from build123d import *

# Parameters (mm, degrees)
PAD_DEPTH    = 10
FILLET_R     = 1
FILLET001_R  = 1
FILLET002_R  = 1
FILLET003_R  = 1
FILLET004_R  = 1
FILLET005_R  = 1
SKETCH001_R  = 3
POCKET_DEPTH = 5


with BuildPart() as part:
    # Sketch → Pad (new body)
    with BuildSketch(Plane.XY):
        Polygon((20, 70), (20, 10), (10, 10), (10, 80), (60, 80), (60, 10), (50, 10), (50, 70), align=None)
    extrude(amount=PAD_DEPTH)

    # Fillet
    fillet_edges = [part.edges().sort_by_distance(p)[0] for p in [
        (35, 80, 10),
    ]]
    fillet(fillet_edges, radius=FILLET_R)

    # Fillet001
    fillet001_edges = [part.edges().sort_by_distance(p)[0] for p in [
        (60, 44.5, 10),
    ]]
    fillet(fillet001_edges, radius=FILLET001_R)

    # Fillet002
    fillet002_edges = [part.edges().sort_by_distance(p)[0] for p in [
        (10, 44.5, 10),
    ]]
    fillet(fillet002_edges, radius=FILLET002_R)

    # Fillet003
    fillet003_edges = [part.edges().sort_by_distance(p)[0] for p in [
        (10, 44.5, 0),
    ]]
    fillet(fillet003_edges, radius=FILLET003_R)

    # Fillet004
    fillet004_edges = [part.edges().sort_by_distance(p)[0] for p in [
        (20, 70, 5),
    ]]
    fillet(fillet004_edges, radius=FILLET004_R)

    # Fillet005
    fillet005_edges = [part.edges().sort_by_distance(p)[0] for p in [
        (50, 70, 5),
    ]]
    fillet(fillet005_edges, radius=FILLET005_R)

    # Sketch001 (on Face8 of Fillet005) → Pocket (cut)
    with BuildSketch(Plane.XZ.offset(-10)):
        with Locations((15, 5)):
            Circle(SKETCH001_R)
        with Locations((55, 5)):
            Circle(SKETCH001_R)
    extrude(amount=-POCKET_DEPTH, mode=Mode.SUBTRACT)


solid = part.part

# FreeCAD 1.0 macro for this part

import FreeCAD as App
import Part
import Sketcher
from FreeCAD import Vector
Q = App.Units.Quantity


def edges_at(feature, points):
    """Names of the edges that pass closest to the given points."""
    edges = feature.Shape.Edges
    near = lambda p: min(range(len(edges)), key=lambda i: edges[i].distToShape(Part.Vertex(*p))[0])
    return sorted({f"Edge{near(p) + 1}" for p in points})


def add_polygon(sketch, points):
    """Adds a closed chain of lines whose ends are joined by coincident constraints."""
    first, n = sketch.GeometryCount, len(points)
    for a, b in zip(points, points[1:] + points[:1]):
        sketch.addGeometry(Part.LineSegment(App.Vector(*a, 0), App.Vector(*b, 0)), False)
    for i in range(n):
        sketch.addConstraint(Sketcher.Constraint("Coincident", first + i, 2, first + (i + 1) % n, 1))

doc = App.newDocument("Part")
body = doc.addObject("PartDesign::Body", "Body")

# Sketch on XY plane
sketch1 = body.newObject("Sketcher::SketchObject", "Sketch")
sketch1.AttachmentSupport = (doc.getObject("XY_Plane"), [""])
sketch1.MapMode = "FlatFace"
add_polygon(sketch1, [(20, 10), (20, 70), (50, 70), (50, 10), (60, 10), (60, 80), (10, 80), (10, 10)])  # lines 0-7
sketch1.addConstraint([
    Sketcher.Constraint("Vertical", 0),
    Sketcher.Constraint("Horizontal", 1),
    Sketcher.Constraint("Vertical", 2),
    Sketcher.Constraint("Horizontal", 3),
    Sketcher.Constraint("Vertical", 4),
    Sketcher.Constraint("Horizontal", 5),
    Sketcher.Constraint("Vertical", 6),
    Sketcher.Constraint("Horizontal", 7),
    Sketcher.Constraint("Horizontal", 3, 2, 6, 2),
    Sketcher.Constraint("Equal", 3, 7),
    Sketcher.Constraint("DistanceX", 1, 1, 1, 2, Q("30 mm")),
    Sketcher.Constraint("DistanceX", 3, 1, 3, 2, Q("10 mm")),
    Sketcher.Constraint("DistanceY", 0, 1, 0, 2, Q("60 mm")),
    Sketcher.Constraint("DistanceY", 4, 1, 4, 2, Q("70 mm")),
    Sketcher.Constraint("DistanceX", -1, 1, 0, 2, Q("20 mm")),
    Sketcher.Constraint("DistanceY", -1, 1, 0, 2, Q("70 mm")),
])
pad1 = body.newObject("PartDesign::Pad", "Pad")
pad1.Profile = sketch1
pad1.Length = 10
doc.recompute()

fillet = body.newObject("PartDesign::Fillet", "Fillet")
fillet.Base = (pad1, edges_at(pad1, [(35, 80, 10)]))
fillet.Radius = 1
doc.recompute()

fillet2 = body.newObject("PartDesign::Fillet", "Fillet001")
fillet2.Base = (fillet, edges_at(fillet, [(60, 44.5, 10)]))
fillet2.Radius = 1
doc.recompute()

fillet3 = body.newObject("PartDesign::Fillet", "Fillet002")
fillet3.Base = (fillet2, edges_at(fillet2, [(10, 44.5, 10)]))
fillet3.Radius = 1
doc.recompute()

fillet4 = body.newObject("PartDesign::Fillet", "Fillet003")
fillet4.Base = (fillet3, edges_at(fillet3, [(10, 44.5, 0)]))
fillet4.Radius = 1
doc.recompute()

fillet5 = body.newObject("PartDesign::Fillet", "Fillet004")
fillet5.Base = (fillet4, edges_at(fillet4, [(20, 70, 5)]))
fillet5.Radius = 1
doc.recompute()

fillet6 = body.newObject("PartDesign::Fillet", "Fillet005")
fillet6.Base = (fillet5, edges_at(fillet5, [(50, 70, 5)]))
fillet6.Radius = 1

# Sketch on XZ plane
sketch2 = body.newObject("Sketcher::SketchObject", "Sketch001")
sketch2.AttachmentSupport = (doc.getObject("XZ_Plane"), [""])
sketch2.MapMode = "FlatFace"
sketch2.AttachmentOffset = App.Placement(Vector(0, 0, -10), App.Rotation())
sketch2.addGeometry([
    Part.Circle(Vector(15, 5, 0), Vector(0, 0, 1), 3),
    Part.Circle(Vector(55, 5, 0), Vector(0, 0, 1), 3),
], False)
sketch2.addConstraint([
    Sketcher.Constraint("Equal", 0, 1),
    Sketcher.Constraint("Horizontal", 0, 3, 1, 3),
    Sketcher.Constraint("Diameter", 0, Q("6 mm")),
    Sketcher.Constraint("DistanceX", -1, 1, 0, 3, Q("15 mm")),
    Sketcher.Constraint("DistanceY", -1, 1, 0, 3, Q("5 mm")),
    Sketcher.Constraint("DistanceX", -1, 1, 1, 3, Q("55 mm")),
])
pocket1 = body.newObject("PartDesign::Pocket", "Pocket")
pocket1.Profile = sketch2
pocket1.Length = 5

doc.recompute()
